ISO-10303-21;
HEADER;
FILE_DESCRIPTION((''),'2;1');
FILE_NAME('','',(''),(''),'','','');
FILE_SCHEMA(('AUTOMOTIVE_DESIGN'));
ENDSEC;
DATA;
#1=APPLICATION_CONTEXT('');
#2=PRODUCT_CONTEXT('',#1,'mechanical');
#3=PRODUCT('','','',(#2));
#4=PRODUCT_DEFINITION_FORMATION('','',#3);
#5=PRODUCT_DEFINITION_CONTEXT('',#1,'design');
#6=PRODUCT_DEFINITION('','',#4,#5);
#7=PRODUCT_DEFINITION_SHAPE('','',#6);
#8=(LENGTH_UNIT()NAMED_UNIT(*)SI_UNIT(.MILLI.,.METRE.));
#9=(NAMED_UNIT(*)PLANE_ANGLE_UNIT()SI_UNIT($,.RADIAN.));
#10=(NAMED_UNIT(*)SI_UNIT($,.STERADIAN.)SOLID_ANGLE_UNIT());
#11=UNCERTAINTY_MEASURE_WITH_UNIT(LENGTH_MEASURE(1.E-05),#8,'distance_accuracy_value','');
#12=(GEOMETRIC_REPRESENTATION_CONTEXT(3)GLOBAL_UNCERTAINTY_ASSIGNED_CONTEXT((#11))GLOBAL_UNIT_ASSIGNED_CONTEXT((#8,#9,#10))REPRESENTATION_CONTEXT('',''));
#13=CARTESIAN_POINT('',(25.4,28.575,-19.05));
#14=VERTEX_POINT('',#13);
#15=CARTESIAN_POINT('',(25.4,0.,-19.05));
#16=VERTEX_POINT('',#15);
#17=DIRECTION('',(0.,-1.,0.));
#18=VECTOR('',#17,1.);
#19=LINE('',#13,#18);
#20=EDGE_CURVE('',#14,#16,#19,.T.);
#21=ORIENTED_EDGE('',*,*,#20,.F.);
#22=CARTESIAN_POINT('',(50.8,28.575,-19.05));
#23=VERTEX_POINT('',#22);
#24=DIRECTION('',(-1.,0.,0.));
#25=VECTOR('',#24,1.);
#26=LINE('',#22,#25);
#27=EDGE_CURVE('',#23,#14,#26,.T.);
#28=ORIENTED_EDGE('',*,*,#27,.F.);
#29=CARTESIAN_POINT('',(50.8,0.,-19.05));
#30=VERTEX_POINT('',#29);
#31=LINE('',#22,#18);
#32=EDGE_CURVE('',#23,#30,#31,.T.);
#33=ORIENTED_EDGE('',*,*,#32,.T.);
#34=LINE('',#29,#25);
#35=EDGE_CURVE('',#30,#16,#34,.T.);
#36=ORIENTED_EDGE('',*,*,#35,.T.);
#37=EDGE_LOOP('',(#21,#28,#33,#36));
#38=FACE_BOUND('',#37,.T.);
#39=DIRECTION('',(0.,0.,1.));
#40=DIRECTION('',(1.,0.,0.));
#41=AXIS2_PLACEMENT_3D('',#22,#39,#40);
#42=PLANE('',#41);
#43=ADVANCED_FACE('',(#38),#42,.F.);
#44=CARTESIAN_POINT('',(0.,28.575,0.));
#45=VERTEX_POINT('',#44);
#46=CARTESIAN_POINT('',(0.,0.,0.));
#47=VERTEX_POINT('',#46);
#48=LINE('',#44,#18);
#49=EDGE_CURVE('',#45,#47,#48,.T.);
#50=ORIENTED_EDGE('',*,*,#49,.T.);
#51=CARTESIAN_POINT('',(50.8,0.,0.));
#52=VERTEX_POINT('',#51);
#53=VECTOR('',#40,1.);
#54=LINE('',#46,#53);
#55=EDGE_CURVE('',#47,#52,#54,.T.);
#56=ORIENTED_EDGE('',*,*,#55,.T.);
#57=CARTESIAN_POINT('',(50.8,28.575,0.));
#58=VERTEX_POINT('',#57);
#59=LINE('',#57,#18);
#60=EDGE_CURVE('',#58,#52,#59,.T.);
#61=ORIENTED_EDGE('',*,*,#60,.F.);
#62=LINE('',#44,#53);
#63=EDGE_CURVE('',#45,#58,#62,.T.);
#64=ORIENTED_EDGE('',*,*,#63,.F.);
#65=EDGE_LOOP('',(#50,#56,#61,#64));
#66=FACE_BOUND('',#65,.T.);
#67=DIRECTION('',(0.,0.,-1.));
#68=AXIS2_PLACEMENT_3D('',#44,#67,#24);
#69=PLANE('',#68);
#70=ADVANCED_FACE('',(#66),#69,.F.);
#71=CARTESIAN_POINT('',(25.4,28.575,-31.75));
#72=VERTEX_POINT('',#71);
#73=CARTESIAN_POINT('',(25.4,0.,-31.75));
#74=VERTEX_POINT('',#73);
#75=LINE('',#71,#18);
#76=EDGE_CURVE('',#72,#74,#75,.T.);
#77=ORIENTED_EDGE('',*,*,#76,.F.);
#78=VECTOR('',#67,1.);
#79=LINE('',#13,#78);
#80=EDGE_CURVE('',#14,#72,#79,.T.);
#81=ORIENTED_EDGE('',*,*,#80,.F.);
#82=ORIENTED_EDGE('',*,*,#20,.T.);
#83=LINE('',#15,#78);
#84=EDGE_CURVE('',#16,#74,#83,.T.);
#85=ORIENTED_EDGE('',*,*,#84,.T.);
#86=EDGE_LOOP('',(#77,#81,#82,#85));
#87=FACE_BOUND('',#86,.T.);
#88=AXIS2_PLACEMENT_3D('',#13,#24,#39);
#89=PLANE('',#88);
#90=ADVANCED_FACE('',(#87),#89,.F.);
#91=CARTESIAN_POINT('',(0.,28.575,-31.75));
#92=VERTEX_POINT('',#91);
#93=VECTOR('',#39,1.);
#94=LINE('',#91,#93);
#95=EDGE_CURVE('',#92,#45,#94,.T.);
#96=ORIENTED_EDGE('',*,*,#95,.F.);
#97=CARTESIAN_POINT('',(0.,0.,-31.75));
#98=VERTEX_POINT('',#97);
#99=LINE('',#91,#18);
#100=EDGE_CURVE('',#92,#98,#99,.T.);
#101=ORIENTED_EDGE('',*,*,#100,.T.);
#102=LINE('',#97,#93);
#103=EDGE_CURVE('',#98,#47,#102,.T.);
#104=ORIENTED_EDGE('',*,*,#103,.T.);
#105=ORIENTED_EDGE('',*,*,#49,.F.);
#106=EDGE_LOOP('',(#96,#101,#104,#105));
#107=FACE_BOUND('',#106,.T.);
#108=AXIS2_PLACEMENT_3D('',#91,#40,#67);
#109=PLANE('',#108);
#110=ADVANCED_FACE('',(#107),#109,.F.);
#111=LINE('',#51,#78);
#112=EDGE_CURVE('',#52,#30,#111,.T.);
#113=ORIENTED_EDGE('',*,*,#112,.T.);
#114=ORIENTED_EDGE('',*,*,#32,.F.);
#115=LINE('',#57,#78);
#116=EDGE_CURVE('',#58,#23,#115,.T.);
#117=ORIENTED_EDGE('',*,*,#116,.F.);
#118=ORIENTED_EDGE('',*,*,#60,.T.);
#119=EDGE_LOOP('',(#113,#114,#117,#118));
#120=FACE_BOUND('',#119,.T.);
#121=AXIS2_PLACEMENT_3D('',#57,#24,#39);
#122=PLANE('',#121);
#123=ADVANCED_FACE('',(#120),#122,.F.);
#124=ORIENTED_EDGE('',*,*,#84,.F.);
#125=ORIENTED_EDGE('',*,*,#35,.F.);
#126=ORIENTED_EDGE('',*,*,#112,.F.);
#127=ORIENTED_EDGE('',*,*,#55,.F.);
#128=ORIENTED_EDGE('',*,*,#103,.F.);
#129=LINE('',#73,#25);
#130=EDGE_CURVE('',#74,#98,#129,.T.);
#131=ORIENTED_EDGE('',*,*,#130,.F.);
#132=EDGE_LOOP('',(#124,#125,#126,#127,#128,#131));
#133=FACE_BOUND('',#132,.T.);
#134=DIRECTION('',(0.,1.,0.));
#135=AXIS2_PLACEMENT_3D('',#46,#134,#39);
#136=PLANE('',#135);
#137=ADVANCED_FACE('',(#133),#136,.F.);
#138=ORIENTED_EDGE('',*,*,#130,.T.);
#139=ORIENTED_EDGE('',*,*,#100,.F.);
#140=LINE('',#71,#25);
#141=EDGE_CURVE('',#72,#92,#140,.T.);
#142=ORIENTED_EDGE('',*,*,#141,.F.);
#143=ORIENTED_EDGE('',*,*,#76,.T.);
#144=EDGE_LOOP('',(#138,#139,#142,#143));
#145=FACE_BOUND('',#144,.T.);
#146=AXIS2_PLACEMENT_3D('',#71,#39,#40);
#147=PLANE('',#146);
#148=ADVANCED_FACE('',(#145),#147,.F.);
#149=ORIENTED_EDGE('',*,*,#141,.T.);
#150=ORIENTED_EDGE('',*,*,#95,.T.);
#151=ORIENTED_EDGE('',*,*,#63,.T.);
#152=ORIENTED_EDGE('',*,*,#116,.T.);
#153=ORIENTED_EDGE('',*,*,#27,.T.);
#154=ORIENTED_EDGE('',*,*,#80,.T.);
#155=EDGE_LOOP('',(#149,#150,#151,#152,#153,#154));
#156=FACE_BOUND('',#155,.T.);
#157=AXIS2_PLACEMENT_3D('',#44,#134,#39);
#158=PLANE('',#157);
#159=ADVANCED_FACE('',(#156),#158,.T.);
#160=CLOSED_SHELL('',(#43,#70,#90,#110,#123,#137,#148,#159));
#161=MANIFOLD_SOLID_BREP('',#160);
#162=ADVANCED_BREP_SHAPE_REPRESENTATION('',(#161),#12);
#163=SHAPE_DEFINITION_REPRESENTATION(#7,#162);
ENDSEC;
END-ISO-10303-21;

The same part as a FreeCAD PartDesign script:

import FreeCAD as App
import Part
import Sketcher

V = App.Vector
Q = App.Units.Quantity

doc = App.newDocument("Part")
body = doc.addObject("PartDesign::Body", "Body")

# Sketch on XZ plane
sketch1 = body.newObject("Sketcher::SketchObject", "Sketch")
sketch1.AttachmentSupport = (doc.getObject("XZ_Plane"), [""])
sketch1.MapMode = "FlatFace"
sketch1.addGeometry(Part.LineSegment(V(0, -32, 0), V(0, 0, 0)), False)
sketch1.addGeometry(Part.LineSegment(V(0, 0, 0), V(51, 0, 0)), False)
sketch1.addGeometry(Part.LineSegment(V(51, 0, 0), V(51, -19, 0)), False)
sketch1.addGeometry(Part.LineSegment(V(51, -19, 0), V(25, -19, 0)), False)
sketch1.addGeometry(Part.LineSegment(V(25, -19, 0), V(25, -32, 0)), False)
sketch1.addGeometry(Part.LineSegment(V(25, -32, 0), V(0, -32, 0)), False)
sketch1.addConstraint(Sketcher.Constraint("Coincident", 0, 2, 1, 1))
sketch1.addConstraint(Sketcher.Constraint("Coincident", 1, 2, 2, 1))
sketch1.addConstraint(Sketcher.Constraint("Coincident", 2, 2, 3, 1))
sketch1.addConstraint(Sketcher.Constraint("Coincident", 3, 2, 4, 1))
sketch1.addConstraint(Sketcher.Constraint("Coincident", 4, 2, 5, 1))
sketch1.addConstraint(Sketcher.Constraint("Coincident", 5, 2, 0, 1))
sketch1.addConstraint(Sketcher.Constraint("Vertical", 0))
sketch1.addConstraint(Sketcher.Constraint("Horizontal", 1))
sketch1.addConstraint(Sketcher.Constraint("Vertical", 2))
sketch1.addConstraint(Sketcher.Constraint("Horizontal", 3))
sketch1.addConstraint(Sketcher.Constraint("Vertical", 4))
sketch1.addConstraint(Sketcher.Constraint("Horizontal", 5))
sketch1.addConstraint(Sketcher.Constraint("Coincident", 0, 2, -1, 1))
sketch1.addConstraint(Sketcher.Constraint("Equal", 3, 5))
sketch1.addConstraint(Sketcher.Constraint("DistanceX", 1, 1, 1, 2, Q("2 in")))
sketch1.addConstraint(Sketcher.Constraint("DistanceY", 4, 2, 4, 1, Q("0.5 in")))
sketch1.addConstraint(Sketcher.Constraint("DistanceY", 0, 1, 0, 2, Q("1.25 in")))
pad1 = body.newObject("PartDesign::Pad", "Pad")
pad1.Profile = sketch1
pad1.Length = Q("1.125 in")
pad1.Reversed = True

doc.recompute()
